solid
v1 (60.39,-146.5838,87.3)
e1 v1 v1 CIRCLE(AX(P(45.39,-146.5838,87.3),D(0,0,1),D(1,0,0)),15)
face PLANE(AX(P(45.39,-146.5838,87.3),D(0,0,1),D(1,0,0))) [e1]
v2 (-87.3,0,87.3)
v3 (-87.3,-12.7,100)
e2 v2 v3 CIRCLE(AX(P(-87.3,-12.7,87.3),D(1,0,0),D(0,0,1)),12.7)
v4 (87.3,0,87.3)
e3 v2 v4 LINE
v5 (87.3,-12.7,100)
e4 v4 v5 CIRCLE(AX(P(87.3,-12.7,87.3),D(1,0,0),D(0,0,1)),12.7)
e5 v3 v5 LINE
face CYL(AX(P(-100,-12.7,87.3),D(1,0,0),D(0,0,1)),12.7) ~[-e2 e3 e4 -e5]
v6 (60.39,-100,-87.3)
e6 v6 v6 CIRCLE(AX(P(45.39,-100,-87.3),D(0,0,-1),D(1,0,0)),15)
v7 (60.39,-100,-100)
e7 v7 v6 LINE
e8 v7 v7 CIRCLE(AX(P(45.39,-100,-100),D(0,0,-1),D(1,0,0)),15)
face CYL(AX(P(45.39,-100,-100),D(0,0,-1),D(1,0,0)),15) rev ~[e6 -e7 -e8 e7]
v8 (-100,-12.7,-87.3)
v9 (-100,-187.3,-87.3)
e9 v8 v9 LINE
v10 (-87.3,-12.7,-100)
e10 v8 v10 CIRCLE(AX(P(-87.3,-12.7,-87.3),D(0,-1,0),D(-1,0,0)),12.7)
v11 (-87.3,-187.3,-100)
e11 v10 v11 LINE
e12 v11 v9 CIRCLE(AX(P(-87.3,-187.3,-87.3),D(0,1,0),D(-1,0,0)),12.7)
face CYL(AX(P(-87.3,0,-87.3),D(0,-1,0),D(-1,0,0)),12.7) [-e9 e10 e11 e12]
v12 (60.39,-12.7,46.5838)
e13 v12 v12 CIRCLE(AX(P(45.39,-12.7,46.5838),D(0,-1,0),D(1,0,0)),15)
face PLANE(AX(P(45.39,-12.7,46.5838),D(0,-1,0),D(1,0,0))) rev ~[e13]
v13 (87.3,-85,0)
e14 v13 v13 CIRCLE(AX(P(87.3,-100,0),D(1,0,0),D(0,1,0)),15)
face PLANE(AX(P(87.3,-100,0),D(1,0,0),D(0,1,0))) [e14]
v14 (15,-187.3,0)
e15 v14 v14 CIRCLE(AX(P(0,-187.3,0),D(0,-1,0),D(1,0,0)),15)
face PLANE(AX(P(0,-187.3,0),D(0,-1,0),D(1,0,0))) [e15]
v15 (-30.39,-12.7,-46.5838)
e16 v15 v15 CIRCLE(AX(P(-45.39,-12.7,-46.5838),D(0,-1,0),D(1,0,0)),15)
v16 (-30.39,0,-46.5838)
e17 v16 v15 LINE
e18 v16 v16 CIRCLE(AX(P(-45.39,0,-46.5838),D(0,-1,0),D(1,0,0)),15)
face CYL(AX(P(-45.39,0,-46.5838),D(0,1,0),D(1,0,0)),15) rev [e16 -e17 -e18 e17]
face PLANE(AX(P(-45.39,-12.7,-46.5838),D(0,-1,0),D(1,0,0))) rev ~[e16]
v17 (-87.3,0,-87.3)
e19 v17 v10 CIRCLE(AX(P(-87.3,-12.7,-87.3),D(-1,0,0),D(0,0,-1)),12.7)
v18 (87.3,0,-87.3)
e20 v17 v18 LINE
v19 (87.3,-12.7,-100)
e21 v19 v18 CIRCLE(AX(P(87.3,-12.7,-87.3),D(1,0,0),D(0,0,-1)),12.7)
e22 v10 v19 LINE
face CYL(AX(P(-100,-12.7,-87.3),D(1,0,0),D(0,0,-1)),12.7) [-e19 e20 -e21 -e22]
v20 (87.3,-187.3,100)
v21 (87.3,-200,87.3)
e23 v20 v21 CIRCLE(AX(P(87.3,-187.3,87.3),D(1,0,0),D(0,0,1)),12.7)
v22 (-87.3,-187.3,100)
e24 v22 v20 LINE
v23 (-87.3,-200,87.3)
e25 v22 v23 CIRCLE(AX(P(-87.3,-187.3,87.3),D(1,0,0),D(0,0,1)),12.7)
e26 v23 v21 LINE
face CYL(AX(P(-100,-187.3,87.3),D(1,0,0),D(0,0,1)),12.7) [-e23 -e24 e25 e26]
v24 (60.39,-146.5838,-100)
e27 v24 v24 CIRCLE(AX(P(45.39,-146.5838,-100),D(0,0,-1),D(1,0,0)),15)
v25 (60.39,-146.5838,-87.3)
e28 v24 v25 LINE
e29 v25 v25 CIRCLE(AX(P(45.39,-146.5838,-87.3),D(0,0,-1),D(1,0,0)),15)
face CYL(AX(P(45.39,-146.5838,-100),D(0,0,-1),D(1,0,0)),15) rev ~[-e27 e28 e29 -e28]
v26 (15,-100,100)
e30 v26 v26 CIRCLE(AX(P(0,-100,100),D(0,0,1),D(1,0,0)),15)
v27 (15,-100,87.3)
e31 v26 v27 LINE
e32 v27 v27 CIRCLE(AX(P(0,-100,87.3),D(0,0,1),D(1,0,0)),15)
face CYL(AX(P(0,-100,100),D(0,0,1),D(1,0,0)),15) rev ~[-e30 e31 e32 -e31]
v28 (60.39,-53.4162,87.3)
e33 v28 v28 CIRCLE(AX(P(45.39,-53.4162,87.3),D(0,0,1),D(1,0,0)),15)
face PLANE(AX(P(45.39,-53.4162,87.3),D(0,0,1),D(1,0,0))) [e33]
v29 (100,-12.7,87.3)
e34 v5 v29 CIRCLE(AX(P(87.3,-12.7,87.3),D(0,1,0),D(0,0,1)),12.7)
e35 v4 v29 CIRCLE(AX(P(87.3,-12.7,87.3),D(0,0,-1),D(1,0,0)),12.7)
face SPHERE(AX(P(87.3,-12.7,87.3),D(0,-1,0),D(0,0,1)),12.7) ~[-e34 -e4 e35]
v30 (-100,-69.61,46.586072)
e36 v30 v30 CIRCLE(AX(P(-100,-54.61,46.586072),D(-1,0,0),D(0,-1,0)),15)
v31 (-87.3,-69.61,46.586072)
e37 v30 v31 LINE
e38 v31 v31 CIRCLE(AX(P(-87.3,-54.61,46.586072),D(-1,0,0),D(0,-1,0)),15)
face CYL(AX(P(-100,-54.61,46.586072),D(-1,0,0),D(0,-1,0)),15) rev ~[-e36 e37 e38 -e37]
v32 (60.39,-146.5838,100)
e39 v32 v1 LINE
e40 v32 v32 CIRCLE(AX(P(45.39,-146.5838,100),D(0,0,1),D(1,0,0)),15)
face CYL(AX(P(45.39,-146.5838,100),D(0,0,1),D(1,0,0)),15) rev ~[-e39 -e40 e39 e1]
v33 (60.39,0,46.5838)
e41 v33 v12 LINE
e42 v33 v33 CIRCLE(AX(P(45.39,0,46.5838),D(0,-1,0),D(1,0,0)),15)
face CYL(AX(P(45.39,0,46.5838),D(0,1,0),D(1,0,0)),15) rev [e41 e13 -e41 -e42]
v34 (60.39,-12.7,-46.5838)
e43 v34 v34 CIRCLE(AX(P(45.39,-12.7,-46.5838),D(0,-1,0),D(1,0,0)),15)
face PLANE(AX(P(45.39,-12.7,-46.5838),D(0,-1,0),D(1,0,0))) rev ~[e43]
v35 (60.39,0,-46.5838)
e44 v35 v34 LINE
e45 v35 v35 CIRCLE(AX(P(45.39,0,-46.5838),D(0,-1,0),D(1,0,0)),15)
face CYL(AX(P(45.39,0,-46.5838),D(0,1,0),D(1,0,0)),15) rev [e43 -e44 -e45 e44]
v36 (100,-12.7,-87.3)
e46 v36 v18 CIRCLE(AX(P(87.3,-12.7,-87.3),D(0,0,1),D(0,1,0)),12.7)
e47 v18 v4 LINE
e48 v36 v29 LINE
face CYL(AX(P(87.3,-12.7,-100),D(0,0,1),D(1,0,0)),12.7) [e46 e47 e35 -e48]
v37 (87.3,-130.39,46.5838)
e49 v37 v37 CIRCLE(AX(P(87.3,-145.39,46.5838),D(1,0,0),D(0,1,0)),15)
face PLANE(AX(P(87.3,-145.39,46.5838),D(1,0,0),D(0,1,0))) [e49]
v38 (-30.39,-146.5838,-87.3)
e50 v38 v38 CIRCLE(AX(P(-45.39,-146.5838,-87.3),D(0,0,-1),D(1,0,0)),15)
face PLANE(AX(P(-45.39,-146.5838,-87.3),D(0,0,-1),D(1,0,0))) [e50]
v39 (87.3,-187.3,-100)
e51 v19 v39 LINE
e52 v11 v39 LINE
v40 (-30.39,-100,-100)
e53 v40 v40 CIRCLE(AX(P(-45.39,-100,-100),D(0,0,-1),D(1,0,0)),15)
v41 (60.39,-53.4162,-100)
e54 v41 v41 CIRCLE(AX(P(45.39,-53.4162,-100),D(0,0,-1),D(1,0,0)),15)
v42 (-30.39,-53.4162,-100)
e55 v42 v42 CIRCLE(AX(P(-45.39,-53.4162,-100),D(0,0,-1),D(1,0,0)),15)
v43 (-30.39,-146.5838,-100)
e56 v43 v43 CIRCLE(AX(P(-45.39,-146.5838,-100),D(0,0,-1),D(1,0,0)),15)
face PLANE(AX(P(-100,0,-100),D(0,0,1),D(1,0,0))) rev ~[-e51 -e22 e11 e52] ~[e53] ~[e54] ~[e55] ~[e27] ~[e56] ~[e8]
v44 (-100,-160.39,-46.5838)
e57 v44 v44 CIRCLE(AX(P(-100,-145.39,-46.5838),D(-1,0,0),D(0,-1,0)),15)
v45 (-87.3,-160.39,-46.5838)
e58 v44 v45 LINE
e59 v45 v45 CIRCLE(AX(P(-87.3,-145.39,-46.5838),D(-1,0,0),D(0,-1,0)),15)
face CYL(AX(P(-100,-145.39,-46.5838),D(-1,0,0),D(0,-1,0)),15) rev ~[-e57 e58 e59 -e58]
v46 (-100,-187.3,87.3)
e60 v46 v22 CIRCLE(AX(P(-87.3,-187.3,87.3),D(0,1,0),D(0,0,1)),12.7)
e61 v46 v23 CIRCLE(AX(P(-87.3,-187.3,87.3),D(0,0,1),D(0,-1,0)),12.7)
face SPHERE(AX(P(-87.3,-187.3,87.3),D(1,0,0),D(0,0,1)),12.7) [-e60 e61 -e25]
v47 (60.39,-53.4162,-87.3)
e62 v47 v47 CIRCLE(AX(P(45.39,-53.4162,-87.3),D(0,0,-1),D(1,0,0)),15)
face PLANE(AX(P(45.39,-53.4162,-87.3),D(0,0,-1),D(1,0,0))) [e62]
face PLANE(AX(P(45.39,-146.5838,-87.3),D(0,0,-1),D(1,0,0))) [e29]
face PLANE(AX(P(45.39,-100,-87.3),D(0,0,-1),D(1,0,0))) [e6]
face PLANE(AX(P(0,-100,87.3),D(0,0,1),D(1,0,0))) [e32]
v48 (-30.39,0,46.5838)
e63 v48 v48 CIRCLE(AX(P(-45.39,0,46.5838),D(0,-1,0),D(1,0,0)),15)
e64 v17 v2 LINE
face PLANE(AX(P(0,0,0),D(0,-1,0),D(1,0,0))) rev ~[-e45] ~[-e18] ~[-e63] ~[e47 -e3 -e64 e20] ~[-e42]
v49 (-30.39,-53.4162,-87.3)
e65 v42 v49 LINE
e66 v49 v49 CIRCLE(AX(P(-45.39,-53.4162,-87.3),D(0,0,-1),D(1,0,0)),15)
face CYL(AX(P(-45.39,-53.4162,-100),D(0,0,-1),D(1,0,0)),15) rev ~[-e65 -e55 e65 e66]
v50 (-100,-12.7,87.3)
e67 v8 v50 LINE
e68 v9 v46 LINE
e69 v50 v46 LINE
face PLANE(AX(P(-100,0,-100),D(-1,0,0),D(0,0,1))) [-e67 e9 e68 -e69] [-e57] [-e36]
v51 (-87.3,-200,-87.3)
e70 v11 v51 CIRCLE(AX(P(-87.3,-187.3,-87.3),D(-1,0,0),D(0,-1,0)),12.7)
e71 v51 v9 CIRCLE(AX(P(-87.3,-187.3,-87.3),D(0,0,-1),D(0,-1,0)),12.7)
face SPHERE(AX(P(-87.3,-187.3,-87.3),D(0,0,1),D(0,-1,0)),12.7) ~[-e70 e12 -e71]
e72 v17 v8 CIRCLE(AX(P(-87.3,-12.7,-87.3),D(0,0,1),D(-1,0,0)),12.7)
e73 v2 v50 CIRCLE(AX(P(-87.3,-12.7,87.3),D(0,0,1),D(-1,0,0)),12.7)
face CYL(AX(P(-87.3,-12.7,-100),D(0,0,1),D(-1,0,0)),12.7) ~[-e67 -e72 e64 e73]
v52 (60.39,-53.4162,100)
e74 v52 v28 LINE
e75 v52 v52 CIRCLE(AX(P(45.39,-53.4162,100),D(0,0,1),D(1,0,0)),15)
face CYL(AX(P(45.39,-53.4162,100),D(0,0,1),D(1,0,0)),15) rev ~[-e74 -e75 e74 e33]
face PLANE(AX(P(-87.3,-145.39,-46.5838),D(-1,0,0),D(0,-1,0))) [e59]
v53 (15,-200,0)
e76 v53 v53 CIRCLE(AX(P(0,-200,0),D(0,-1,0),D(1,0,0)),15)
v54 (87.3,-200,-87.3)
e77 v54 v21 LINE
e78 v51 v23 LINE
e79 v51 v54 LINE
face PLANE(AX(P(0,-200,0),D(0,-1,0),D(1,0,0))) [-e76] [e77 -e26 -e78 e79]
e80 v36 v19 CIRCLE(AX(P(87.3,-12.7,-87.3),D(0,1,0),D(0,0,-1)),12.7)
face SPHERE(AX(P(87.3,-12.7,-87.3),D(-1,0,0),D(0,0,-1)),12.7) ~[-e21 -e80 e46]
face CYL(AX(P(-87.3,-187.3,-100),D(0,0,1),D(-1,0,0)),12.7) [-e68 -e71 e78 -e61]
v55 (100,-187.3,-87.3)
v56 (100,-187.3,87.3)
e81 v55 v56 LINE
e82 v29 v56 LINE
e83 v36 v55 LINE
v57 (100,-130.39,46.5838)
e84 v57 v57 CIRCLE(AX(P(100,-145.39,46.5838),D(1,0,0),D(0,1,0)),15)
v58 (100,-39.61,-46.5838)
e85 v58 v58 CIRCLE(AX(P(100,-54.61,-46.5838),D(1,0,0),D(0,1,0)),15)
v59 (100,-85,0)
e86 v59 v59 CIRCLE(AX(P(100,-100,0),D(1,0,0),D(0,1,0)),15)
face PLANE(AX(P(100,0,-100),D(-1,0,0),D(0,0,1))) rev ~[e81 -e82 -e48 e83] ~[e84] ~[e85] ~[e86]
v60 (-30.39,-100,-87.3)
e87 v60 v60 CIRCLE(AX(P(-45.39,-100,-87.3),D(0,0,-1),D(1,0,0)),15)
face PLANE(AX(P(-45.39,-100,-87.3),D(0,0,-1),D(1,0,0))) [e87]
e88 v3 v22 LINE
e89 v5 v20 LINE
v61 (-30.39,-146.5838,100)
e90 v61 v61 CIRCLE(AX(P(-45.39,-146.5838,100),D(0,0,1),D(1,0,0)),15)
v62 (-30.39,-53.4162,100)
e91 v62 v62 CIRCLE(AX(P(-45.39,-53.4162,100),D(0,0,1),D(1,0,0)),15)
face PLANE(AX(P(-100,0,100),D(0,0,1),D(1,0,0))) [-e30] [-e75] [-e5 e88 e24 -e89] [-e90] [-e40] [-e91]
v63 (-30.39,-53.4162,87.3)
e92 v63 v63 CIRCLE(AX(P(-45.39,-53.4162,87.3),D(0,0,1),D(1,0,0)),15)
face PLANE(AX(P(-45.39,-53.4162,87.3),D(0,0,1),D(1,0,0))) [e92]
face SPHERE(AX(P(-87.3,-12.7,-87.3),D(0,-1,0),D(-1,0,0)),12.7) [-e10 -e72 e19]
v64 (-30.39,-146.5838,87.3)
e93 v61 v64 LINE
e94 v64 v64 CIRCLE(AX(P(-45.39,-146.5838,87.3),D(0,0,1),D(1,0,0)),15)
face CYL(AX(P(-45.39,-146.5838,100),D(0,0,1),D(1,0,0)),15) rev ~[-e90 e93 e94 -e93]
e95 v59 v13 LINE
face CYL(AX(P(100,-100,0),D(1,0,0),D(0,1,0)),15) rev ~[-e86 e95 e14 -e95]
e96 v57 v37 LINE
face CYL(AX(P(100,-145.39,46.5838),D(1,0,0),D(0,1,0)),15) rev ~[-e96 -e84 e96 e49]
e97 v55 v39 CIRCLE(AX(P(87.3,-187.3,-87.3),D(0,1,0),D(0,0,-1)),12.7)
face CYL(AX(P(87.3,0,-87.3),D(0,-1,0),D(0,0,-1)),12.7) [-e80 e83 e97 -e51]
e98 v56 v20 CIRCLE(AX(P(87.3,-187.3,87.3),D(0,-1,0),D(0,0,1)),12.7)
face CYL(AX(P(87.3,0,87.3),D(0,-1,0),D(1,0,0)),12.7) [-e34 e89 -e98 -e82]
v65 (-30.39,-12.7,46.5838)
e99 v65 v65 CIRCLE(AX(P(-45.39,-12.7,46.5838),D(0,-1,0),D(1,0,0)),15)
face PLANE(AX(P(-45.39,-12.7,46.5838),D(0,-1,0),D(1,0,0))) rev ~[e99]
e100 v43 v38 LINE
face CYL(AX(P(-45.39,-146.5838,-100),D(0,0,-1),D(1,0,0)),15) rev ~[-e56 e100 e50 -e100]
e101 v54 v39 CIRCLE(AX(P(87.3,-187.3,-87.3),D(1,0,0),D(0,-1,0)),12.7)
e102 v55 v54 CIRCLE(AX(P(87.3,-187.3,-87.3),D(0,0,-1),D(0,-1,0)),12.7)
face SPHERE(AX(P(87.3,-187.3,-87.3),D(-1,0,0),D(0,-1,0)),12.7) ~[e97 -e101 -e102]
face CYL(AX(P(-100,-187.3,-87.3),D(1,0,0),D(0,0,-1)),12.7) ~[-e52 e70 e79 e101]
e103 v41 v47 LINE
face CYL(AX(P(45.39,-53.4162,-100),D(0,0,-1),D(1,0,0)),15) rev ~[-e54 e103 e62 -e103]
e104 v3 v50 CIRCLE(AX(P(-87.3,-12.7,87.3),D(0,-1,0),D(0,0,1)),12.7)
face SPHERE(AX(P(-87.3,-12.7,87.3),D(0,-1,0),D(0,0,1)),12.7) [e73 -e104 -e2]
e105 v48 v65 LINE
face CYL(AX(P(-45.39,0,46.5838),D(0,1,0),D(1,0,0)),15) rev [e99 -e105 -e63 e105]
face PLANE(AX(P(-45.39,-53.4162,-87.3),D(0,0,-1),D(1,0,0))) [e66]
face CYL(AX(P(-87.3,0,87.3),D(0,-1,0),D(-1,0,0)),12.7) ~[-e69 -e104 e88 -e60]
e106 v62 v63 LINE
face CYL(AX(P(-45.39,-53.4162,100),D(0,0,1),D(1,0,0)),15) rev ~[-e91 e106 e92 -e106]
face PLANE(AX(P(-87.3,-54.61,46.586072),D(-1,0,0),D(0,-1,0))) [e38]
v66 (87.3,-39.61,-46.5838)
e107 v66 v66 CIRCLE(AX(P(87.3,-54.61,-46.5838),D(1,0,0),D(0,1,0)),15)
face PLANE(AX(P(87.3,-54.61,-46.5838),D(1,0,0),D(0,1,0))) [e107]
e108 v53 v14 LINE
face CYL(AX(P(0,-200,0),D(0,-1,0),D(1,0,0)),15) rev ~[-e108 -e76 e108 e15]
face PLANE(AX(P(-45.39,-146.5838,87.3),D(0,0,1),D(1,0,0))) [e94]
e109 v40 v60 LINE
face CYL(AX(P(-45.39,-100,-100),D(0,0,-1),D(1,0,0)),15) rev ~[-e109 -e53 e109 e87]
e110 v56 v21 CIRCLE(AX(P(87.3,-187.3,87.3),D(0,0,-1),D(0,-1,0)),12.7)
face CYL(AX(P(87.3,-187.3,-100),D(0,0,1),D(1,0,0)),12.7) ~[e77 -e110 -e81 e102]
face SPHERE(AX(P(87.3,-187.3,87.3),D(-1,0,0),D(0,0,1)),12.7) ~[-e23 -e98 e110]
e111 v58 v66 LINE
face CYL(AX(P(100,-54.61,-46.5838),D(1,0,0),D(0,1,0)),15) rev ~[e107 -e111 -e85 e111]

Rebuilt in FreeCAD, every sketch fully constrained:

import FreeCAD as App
import Part
import Sketcher
from FreeCAD import Vector
Q = App.Units.Quantity


def add_polygon(sketch, points):
    """Adds a closed chain of lines whose ends are joined by coincident constraints."""
    first, n = sketch.GeometryCount, len(points)
    for a, b in zip(points, points[1:] + points[:1]):
        sketch.addGeometry(Part.LineSegment(App.Vector(*a, 0), App.Vector(*b, 0)), False)
    for i in range(n):
        sketch.addConstraint(Sketcher.Constraint("Coincident", first + i, 2, first + (i + 1) % n, 1))

doc = App.newDocument("Part")
body = doc.addObject("PartDesign::Body", "Body")

sketch1 = doc.addObject("Sketcher::SketchObject", "Sketch")
body.addObject(sketch1)
sketch1.AttachmentSupport = (doc.XZ_Plane, [""])
sketch1.MapMode = "FlatFace"
add_polygon(sketch1, [(-100, 100), (-100, -100), (100, -100), (100, 100)])
sketch1.addConstraint(Sketcher.Constraint("Vertical", 0))
sketch1.addConstraint(Sketcher.Constraint("Horizontal", 1))
sketch1.addConstraint(Sketcher.Constraint("Vertical", 2))
sketch1.addConstraint(Sketcher.Constraint("Horizontal", 3))
sketch1.addConstraint(Sketcher.Constraint("Symmetric", 0, 2, 2, 2, -1, 1))
sketch1.addConstraint(Sketcher.Constraint("Equal", 3, 0))
sketch1.addConstraint(Sketcher.Constraint("DistanceX", 1, 1, 1, 2, Q("200 mm")))
pad1 = doc.addObject("PartDesign::Pad", "Pad")
body.addObject(pad1)
pad1.Profile = sketch1
pad1.Length = 200
doc.recompute()

fillet = doc.addObject("PartDesign::Fillet", "Fillet")
body.addObject(fillet)
fillet.Base = (pad1, ["Edge1"])
fillet.UseAllEdges = True
fillet.Radius = 12.7

sketch2 = doc.addObject("Sketcher::SketchObject", "Sketch001")
body.addObject(sketch2)
sketch2.AttachmentSupport = (doc.XZ_Plane, [""])
sketch2.MapMode = "FlatFace"
sketch2.AttachmentOffset = App.Placement(Vector(0, 0, 200), App.Rotation())
sketch2.addGeometry(Part.Circle(Vector(0, 0, 0), Vector(0, 0, 1), 15), False)
sketch2.addConstraint(Sketcher.Constraint("Coincident", 0, 3, -1, 1))
sketch2.addConstraint(Sketcher.Constraint("Diameter", 0, Q("30 mm")))
pocket1 = doc.addObject("PartDesign::Pocket", "Pocket")
body.addObject(pocket1)
pocket1.Profile = sketch2
pocket1.Length = 12.7

sketch3 = doc.addObject("Sketcher::SketchObject", "Sketch002")
body.addObject(sketch3)
sketch3.AttachmentSupport = (doc.YZ_Plane, [""])
sketch3.MapMode = "FlatFace"
sketch3.AttachmentOffset = App.Placement(Vector(0, 0, -100), App.Rotation())
sketch3.addGeometry(Part.Circle(Vector(-54.61, 46.586072, 0), Vector(0, 0, 1), 15), False)
sketch3.addGeometry(Part.Circle(Vector(-145.39, -46.5838, 0), Vector(0, 0, 1), 15), False)
sketch3.addConstraint(Sketcher.Constraint("Equal", 0, 1))
sketch3.addConstraint(Sketcher.Constraint("Diameter", 0, Q("30 mm")))
sketch3.addConstraint(Sketcher.Constraint("DistanceX", 0, 3, -1, 1, Q("54.61 mm")))
sketch3.addConstraint(Sketcher.Constraint("DistanceX", 1, 3, -1, 1, Q("145.39 mm")))
sketch3.addConstraint(Sketcher.Constraint("DistanceY", 1, 3, -1, 1, Q("46.5838 mm")))
sketch3.addConstraint(Sketcher.Constraint("DistanceY", 1, 3, 0, 3, Q("93.169872 mm")))
pocket2 = doc.addObject("PartDesign::Pocket", "Pocket001")
body.addObject(pocket2)
pocket2.Profile = sketch3
pocket2.Length = 12.7
pocket2.Reversed = True

sketch4 = doc.addObject("Sketcher::SketchObject", "Sketch003")
body.addObject(sketch4)
sketch4.AttachmentSupport = (doc.YZ_Plane, [""])
sketch4.MapMode = "FlatFace"
sketch4.AttachmentOffset = App.Placement(Vector(0, 0, 100), App.Rotation())
sketch4.addGeometry(Part.Circle(Vector(-145.39, 46.5838, 0), Vector(0, 0, 1), 15), False)
sketch4.addGeometry(Part.Circle(Vector(-100, 0, 0), Vector(0, 0, 1), 15), False)
sketch4.addGeometry(Part.Circle(Vector(-54.61, -46.5838, 0), Vector(0, 0, 1), 15), False)
sketch4.addConstraint(Sketcher.Constraint("Equal", 0, 1))
sketch4.addConstraint(Sketcher.Constraint("Equal", 1, 2))
sketch4.addConstraint(Sketcher.Constraint("PointOnObject", 1, 3, -1))
sketch4.addConstraint(Sketcher.Constraint("Diameter", 0, Q("30 mm")))
sketch4.addConstraint(Sketcher.Constraint("DistanceX", 1, 3, -1, 1, Q("100 mm")))
sketch4.addConstraint(Sketcher.Constraint("DistanceX", 0, 3, -1, 1, Q("145.39 mm")))
sketch4.addConstraint(Sketcher.Constraint("DistanceX", 2, 3, -1, 1, Q("54.61 mm")))
sketch4.addConstraint(Sketcher.Constraint("DistanceY", -1, 1, 0, 3, Q("46.5838 mm")))
sketch4.addConstraint(Sketcher.Constraint("DistanceY", 2, 3, -1, 1, Q("46.5838 mm")))
pocket3 = doc.addObject("PartDesign::Pocket", "Pocket002")
body.addObject(pocket3)
pocket3.Profile = sketch4
pocket3.Length = 12.7

sketch5 = doc.addObject("Sketcher::SketchObject", "Sketch004")
body.addObject(sketch5)
sketch5.AttachmentSupport = (doc.XZ_Plane, [""])
sketch5.MapMode = "FlatFace"
sketch5.addGeometry(Part.Circle(Vector(45.39, 46.5838, 0), Vector(0, 0, 1), 15), False)
sketch5.addGeometry(Part.Circle(Vector(45.39, -46.5838, 0), Vector(0, 0, 1), 15), False)
sketch5.addGeometry(Part.Circle(Vector(-45.39, -46.5838, 0), Vector(0, 0, 1), 15), False)
sketch5.addGeometry(Part.Circle(Vector(-45.39, 46.5838, 0), Vector(0, 0, 1), 15), False)
sketch5.addConstraint(Sketcher.Constraint("Equal", 0, 1))
sketch5.addConstraint(Sketcher.Constraint("Equal", 1, 2))
sketch5.addConstraint(Sketcher.Constraint("Equal", 2, 3))
sketch5.addConstraint(Sketcher.Constraint("Symmetric", 0, 3, 2, 3, -1, 1))
sketch5.addConstraint(Sketcher.Constraint("Symmetric", 1, 3, 3, 3, -1, 1))
sketch5.addConstraint(Sketcher.Constraint("Symmetric", 1, 3, 2, 3, -2))
sketch5.addConstraint(Sketcher.Constraint("Diameter", 0, Q("30 mm")))
sketch5.addConstraint(Sketcher.Constraint("DistanceX", -1, 1, 0, 3, Q("45.39 mm")))
sketch5.addConstraint(Sketcher.Constraint("DistanceY", -1, 1, 0, 3, Q("46.5838 mm")))
pocket4 = doc.addObject("PartDesign::Pocket", "Pocket003")
body.addObject(pocket4)
pocket4.Profile = sketch5
pocket4.Length = 12.7
pocket4.Reversed = True

sketch6 = doc.addObject("Sketcher::SketchObject", "Sketch005")
body.addObject(sketch6)
sketch6.AttachmentSupport = (doc.XY_Plane, [""])
sketch6.MapMode = "FlatFace"
sketch6.AttachmentOffset = App.Placement(Vector(0, 0, 100), App.Rotation())
sketch6.addGeometry(Part.Circle(Vector(0, -100, 0), Vector(0, 0, 1), 15), False)
sketch6.addGeometry(Part.Circle(Vector(-45.39, -53.4162, 0), Vector(0, 0, 1), 15), False)
sketch6.addGeometry(Part.Circle(Vector(45.39, -53.4162, 0), Vector(0, 0, 1), 15), False)
sketch6.addGeometry(Part.Circle(Vector(-45.39, -146.5838, 0), Vector(0, 0, 1), 15), False)
sketch6.addGeometry(Part.Circle(Vector(45.39, -146.5838, 0), Vector(0, 0, 1), 15), False)
sketch6.addConstraint(Sketcher.Constraint("Equal", 0, 1))
sketch6.addConstraint(Sketcher.Constraint("Equal", 1, 2))
sketch6.addConstraint(Sketcher.Constraint("Equal", 2, 3))
sketch6.addConstraint(Sketcher.Constraint("Equal", 3, 4))
sketch6.addConstraint(Sketcher.Constraint("Symmetric", 1, 3, 2, 3, -2))
sketch6.addConstraint(Sketcher.Constraint("Symmetric", 3, 3, 4, 3, -2))
sketch6.addConstraint(Sketcher.Constraint("PointOnObject", 0, 3, -2))
sketch6.addConstraint(Sketcher.Constraint("Vertical", 1, 3, 3, 3))
sketch6.addConstraint(Sketcher.Constraint("Diameter", 0, Q("30 mm")))
sketch6.addConstraint(Sketcher.Constraint("DistanceY", 0, 3, -1, 1, Q("100 mm")))
sketch6.addConstraint(Sketcher.Constraint("DistanceX", 1, 3, -1, 1, Q("45.39 mm")))
sketch6.addConstraint(Sketcher.Constraint("DistanceY", 1, 3, -1, 1, Q("53.4162 mm")))
sketch6.addConstraint(Sketcher.Constraint("DistanceY", 3, 3, -1, 1, Q("146.5838 mm")))
pocket5 = doc.addObject("PartDesign::Pocket", "Pocket004")
body.addObject(pocket5)
pocket5.Profile = sketch6
pocket5.Length = 12.7

sketch7 = doc.addObject("Sketcher::SketchObject", "Sketch006")
body.addObject(sketch7)
sketch7.AttachmentSupport = (doc.XY_Plane, [""])
sketch7.MapMode = "FlatFace"
sketch7.AttachmentOffset = App.Placement(Vector(0, 0, -100), App.Rotation())
sketch7.addGeometry(Part.Circle(Vector(45.39, -53.4162, 0), Vector(0, 0, 1), 15), False)
sketch7.addGeometry(Part.Circle(Vector(45.39, -100, 0), Vector(0, 0, 1), 15), False)
sketch7.addGeometry(Part.Circle(Vector(45.39, -146.5838, 0), Vector(0, 0, 1), 15), False)
sketch7.addGeometry(Part.Circle(Vector(-45.39, -53.4162, 0), Vector(0, 0, 1), 15), False)
sketch7.addGeometry(Part.Circle(Vector(-45.39, -100, 0), Vector(0, 0, 1), 15), False)
sketch7.addGeometry(Part.Circle(Vector(-45.39, -146.5838, 0), Vector(0, 0, 1), 15), False)
sketch7.addConstraint(Sketcher.Constraint("Equal", 0, 1))
sketch7.addConstraint(Sketcher.Constraint("Equal", 1, 2))
sketch7.addConstraint(Sketcher.Constraint("Equal", 2, 3))
sketch7.addConstraint(Sketcher.Constraint("Equal", 3, 4))
sketch7.addConstraint(Sketcher.Constraint("Equal", 4, 5))
sketch7.addConstraint(Sketcher.Constraint("Symmetric", 0, 3, 3, 3, -2))
sketch7.addConstraint(Sketcher.Constraint("Symmetric", 1, 3, 4, 3, -2))
sketch7.addConstraint(Sketcher.Constraint("Symmetric", 2, 3, 5, 3, -2))
sketch7.addConstraint(Sketcher.Constraint("Vertical", 0, 3, 1, 3))
sketch7.addConstraint(Sketcher.Constraint("Vertical", 1, 3, 2, 3))
sketch7.addConstraint(Sketcher.Constraint("Diameter", 0, Q("30 mm")))
sketch7.addConstraint(Sketcher.Constraint("DistanceY", 1, 3, -1, 1, Q("100 mm")))
sketch7.addConstraint(Sketcher.Constraint("DistanceX", -1, 1, 0, 3, Q("45.39 mm")))
sketch7.addConstraint(Sketcher.Constraint("DistanceY", 0, 3, -1, 1, Q("53.4162 mm")))
sketch7.addConstraint(Sketcher.Constraint("DistanceY", 2, 3, -1, 1, Q("146.5838 mm")))
pocket6 = doc.addObject("PartDesign::Pocket", "Pocket005")
body.addObject(pocket6)
pocket6.Profile = sketch7
pocket6.Length = 12.7
pocket6.Reversed = True

doc.recompute()
